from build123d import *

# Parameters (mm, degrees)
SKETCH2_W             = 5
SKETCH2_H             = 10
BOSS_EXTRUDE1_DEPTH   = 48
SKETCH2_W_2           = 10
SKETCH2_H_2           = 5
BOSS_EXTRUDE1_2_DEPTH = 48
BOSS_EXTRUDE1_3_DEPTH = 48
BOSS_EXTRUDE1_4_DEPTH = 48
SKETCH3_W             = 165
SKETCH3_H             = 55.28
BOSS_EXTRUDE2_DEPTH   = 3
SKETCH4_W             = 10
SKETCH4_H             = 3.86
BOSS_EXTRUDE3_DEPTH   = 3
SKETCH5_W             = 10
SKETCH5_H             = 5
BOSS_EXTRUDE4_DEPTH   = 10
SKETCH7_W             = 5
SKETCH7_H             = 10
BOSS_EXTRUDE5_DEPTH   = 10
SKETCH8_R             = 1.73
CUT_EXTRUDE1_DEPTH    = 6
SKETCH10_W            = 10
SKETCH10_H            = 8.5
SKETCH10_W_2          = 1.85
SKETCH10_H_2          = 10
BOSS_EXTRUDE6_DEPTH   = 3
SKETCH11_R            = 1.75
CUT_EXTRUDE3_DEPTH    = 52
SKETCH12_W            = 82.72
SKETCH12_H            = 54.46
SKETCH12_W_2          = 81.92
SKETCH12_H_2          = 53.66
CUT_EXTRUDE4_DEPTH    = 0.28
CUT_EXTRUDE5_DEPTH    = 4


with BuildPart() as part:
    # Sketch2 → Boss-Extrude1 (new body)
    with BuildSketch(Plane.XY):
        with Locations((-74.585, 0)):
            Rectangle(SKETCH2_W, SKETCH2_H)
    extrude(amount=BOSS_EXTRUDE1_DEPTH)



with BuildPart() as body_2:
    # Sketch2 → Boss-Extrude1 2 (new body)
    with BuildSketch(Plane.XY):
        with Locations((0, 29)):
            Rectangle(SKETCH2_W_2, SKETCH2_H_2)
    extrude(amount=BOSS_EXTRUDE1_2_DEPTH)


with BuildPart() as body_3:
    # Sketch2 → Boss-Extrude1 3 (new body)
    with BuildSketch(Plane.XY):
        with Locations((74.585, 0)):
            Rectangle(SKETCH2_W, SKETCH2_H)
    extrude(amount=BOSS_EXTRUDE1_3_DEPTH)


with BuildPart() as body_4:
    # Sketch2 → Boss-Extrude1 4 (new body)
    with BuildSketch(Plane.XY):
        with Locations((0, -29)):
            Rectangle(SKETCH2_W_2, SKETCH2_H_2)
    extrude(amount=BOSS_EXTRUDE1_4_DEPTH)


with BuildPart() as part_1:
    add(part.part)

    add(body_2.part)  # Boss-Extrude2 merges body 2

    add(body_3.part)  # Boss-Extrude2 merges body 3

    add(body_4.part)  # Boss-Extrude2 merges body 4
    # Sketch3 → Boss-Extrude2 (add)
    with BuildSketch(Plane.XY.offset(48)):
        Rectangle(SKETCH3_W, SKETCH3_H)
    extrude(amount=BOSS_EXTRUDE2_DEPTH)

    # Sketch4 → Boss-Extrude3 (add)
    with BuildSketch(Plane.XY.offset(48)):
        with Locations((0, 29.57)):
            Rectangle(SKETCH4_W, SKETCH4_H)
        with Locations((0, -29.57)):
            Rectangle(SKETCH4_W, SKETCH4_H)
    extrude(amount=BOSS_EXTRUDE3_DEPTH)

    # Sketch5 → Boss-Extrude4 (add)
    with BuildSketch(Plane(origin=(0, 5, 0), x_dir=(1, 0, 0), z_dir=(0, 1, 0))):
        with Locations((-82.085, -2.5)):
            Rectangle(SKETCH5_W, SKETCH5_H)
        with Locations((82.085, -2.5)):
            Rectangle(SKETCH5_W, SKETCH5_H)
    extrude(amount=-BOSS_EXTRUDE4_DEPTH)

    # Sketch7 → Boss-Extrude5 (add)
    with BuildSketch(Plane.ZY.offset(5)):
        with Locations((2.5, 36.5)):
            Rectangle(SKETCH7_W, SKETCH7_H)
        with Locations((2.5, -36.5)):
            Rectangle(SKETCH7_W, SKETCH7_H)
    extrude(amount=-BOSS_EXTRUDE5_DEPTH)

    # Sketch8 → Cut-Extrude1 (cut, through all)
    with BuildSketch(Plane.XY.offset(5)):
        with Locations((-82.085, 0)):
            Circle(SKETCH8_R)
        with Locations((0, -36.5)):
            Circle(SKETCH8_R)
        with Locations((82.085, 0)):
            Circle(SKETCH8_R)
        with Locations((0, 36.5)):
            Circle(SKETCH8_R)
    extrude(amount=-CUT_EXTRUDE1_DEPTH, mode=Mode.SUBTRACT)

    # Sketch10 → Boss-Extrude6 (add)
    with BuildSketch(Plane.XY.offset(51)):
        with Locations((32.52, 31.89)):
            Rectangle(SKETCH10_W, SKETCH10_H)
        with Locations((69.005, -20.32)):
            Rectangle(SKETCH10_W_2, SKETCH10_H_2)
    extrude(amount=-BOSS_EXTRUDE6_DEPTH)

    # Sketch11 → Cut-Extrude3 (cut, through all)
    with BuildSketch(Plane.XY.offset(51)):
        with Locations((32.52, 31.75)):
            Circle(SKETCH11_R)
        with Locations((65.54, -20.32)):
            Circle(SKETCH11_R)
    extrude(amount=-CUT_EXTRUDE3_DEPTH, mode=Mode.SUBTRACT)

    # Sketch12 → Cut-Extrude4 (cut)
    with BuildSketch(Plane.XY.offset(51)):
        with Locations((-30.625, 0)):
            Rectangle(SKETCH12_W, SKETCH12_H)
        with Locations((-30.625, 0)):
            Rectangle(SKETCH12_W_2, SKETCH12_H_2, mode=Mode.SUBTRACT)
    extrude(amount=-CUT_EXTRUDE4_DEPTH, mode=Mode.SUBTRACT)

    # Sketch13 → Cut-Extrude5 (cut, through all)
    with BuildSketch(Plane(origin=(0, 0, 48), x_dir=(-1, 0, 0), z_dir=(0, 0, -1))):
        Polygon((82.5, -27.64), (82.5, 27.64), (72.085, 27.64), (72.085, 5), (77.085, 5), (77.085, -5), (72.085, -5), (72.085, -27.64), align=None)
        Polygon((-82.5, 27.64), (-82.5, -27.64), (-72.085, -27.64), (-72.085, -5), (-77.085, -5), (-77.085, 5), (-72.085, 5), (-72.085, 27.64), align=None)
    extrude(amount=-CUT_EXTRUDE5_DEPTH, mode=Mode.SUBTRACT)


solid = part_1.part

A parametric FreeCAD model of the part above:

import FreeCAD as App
import Part
import Sketcher
Q = App.Units.Quantity


def add_polygon(sketch, points):
    """Adds a closed chain of lines whose ends are joined by coincident constraints."""
    first, n = sketch.GeometryCount, len(points)
    for a, b in zip(points, points[1:] + points[:1]):
        sketch.addGeometry(Part.LineSegment(App.Vector(*a, 0), App.Vector(*b, 0)), False)
    for i in range(n):
        sketch.addConstraint(Sketcher.Constraint("Coincident", first + i, 2, first + (i + 1) % n, 1))

doc = App.newDocument("Part")
body = doc.addObject("PartDesign::Body", "Body")

# Sketch on XY plane
sketch1 = body.newObject("Sketcher::SketchObject", "Sketch")
sketch1.AttachmentSupport = (doc.getObject("XY_Plane"), [""])
sketch1.MapMode = "FlatFace"
add_polygon(sketch1, [(-77, 5), (-77, -5), (-72, -5), (-72, 5)])  # lines 0-3
sketch1.addConstraint(Sketcher.Constraint("Vertical", 0))
sketch1.addConstraint(Sketcher.Constraint("Horizontal", 1))
sketch1.addConstraint(Sketcher.Constraint("Vertical", 2))
sketch1.addConstraint(Sketcher.Constraint("Horizontal", 3))
sketch1.addConstraint(Sketcher.Constraint("DistanceX", 1, 1, 1, 2, Q("5 mm")))
sketch1.addConstraint(Sketcher.Constraint("DistanceY", 0, 2, 0, 1, Q("10 mm")))
sketch1.addConstraint(Sketcher.Constraint("DistanceY", 0, 2, -1, 1, Q("5 mm")))
sketch1.addConstraint(Sketcher.Constraint("DistanceX", 0, 2, -1, 1, Q("77.085 mm")))
pad1 = body.newObject("PartDesign::Pad", "Pad")
pad1.Profile = sketch1
pad1.Length = 48
body2 = doc.addObject("PartDesign::Body", "Body001")

# Sketch on XY plane
sketch2 = body2.newObject("Sketcher::SketchObject", "Sketch001")
sketch2.AttachmentSupport = (doc.getObject("XY_Plane001"), [""])
sketch2.MapMode = "FlatFace"
add_polygon(sketch2, [(-5, 32), (-5, 26), (5, 26), (5, 32)])  # lines 0-3
sketch2.addConstraint(Sketcher.Constraint("Vertical", 0))
sketch2.addConstraint(Sketcher.Constraint("Horizontal", 1))
sketch2.addConstraint(Sketcher.Constraint("Vertical", 2))
sketch2.addConstraint(Sketcher.Constraint("Horizontal", 3))
sketch2.addConstraint(Sketcher.Constraint("DistanceX", 1, 1, 1, 2, Q("10 mm")))
sketch2.addConstraint(Sketcher.Constraint("DistanceY", 0, 2, 0, 1, Q("5 mm")))
sketch2.addConstraint(Sketcher.Constraint("DistanceX", 0, 2, -1, 1, Q("5 mm")))
sketch2.addConstraint(Sketcher.Constraint("DistanceY", -1, 1, 0, 2, Q("26.5 mm")))
pad2 = body2.newObject("PartDesign::Pad", "Pad001")
pad2.Profile = sketch2
pad2.Length = 48
body3 = doc.addObject("PartDesign::Body", "Body002")

# Sketch on XY plane
sketch3 = body3.newObject("Sketcher::SketchObject", "Sketch002")
sketch3.AttachmentSupport = (doc.getObject("XY_Plane002"), [""])
sketch3.MapMode = "FlatFace"
add_polygon(sketch3, [(72, 5), (72, -5), (77, -5), (77, 5)])  # lines 0-3
sketch3.addConstraint(Sketcher.Constraint("Vertical", 0))
sketch3.addConstraint(Sketcher.Constraint("Horizontal", 1))
sketch3.addConstraint(Sketcher.Constraint("Vertical", 2))
sketch3.addConstraint(Sketcher.Constraint("Horizontal", 3))
sketch3.addConstraint(Sketcher.Constraint("DistanceX", 1, 1, 1, 2, Q("5 mm")))
sketch3.addConstraint(Sketcher.Constraint("DistanceY", 0, 2, 0, 1, Q("10 mm")))
sketch3.addConstraint(Sketcher.Constraint("DistanceY", 0, 2, -1, 1, Q("5 mm")))
sketch3.addConstraint(Sketcher.Constraint("DistanceX", -1, 1, 0, 2, Q("72.085 mm")))
pad3 = body3.newObject("PartDesign::Pad", "Pad002")
pad3.Profile = sketch3
pad3.Length = 48
body4 = doc.addObject("PartDesign::Body", "Body003")

# Sketch on XY plane
sketch4 = body4.newObject("Sketcher::SketchObject", "Sketch003")
sketch4.AttachmentSupport = (doc.getObject("XY_Plane003"), [""])
sketch4.MapMode = "FlatFace"
add_polygon(sketch4, [(-5, -26), (-5, -32), (5, -32), (5, -26)])  # lines 0-3
sketch4.addConstraint(Sketcher.Constraint("Vertical", 0))
sketch4.addConstraint(Sketcher.Constraint("Horizontal", 1))
sketch4.addConstraint(Sketcher.Constraint("Vertical", 2))
sketch4.addConstraint(Sketcher.Constraint("Horizontal", 3))
sketch4.addConstraint(Sketcher.Constraint("DistanceX", 1, 1, 1, 2, Q("10 mm")))
sketch4.addConstraint(Sketcher.Constraint("DistanceY", 0, 2, 0, 1, Q("5 mm")))
sketch4.addConstraint(Sketcher.Constraint("DistanceX", 0, 2, -1, 1, Q("5 mm")))
sketch4.addConstraint(Sketcher.Constraint("DistanceY", 0, 2, -1, 1, Q("31.5 mm")))
pad4 = body4.newObject("PartDesign::Pad", "Pad003")
pad4.Profile = sketch4
pad4.Length = 48
body.AllowCompound = True
doc.recompute()

boolean = body.newObject("PartDesign::Boolean", "Boolean")
boolean.Type = "Fuse"
boolean.addObjects([body2])
doc.recompute()

boolean2 = body.newObject("PartDesign::Boolean", "Boolean001")
boolean2.Type = "Fuse"
boolean2.addObjects([body3])
doc.recompute()

boolean3 = body.newObject("PartDesign::Boolean", "Boolean002")
boolean3.Type = "Fuse"
boolean3.addObjects([body4])

# Sketch on XY plane
sketch5 = body.newObject("Sketcher::SketchObject", "Sketch004")
sketch5.AttachmentSupport = (doc.getObject("XY_Plane"), [""])
sketch5.MapMode = "FlatFace"
sketch5.AttachmentOffset = App.Placement(App.Vector(0, 0, 48), App.Rotation())
add_polygon(sketch5, [(-82, 28), (-82, -28), (82, -28), (82, 28)])  # lines 0-3
sketch5.addConstraint(Sketcher.Constraint("Vertical", 0))
sketch5.addConstraint(Sketcher.Constraint("Horizontal", 1))
sketch5.addConstraint(Sketcher.Constraint("Vertical", 2))
sketch5.addConstraint(Sketcher.Constraint("Horizontal", 3))
sketch5.addConstraint(Sketcher.Constraint("Symmetric", 0, 2, 2, 2, -1, 1))
sketch5.addConstraint(Sketcher.Constraint("DistanceX", 1, 1, 1, 2, Q("165 mm")))
sketch5.addConstraint(Sketcher.Constraint("DistanceY", 0, 2, 0, 1, Q("55.28 mm")))
pad5 = body.newObject("PartDesign::Pad", "Pad004")
pad5.Profile = sketch5
pad5.Length = 3

# Sketch on XY plane
sketch6 = body.newObject("Sketcher::SketchObject", "Sketch005")
sketch6.AttachmentSupport = (doc.getObject("XY_Plane"), [""])
sketch6.MapMode = "FlatFace"
sketch6.AttachmentOffset = App.Placement(App.Vector(0, 0, 48), App.Rotation())
add_polygon(sketch6, [(-5, 31.5), (-5, 27.6), (5, 27.6), (5, 31.5)])  # lines 0-3
add_polygon(sketch6, [(-5, -27.6), (-5, -31.5), (5, -31.5), (5, -27.6)])  # lines 4-7
sketch6.addConstraint(Sketcher.Constraint("Vertical", 0))
sketch6.addConstraint(Sketcher.Constraint("Horizontal", 1))
sketch6.addConstraint(Sketcher.Constraint("Vertical", 2))
sketch6.addConstraint(Sketcher.Constraint("Horizontal", 3))
sketch6.addConstraint(Sketcher.Constraint("Vertical", 4))
sketch6.addConstraint(Sketcher.Constraint("Horizontal", 5))
sketch6.addConstraint(Sketcher.Constraint("Vertical", 6))
sketch6.addConstraint(Sketcher.Constraint("Horizontal", 7))
sketch6.addConstraint(Sketcher.Constraint("Symmetric", 2, 2, 4, 2, -1, 1))
sketch6.addConstraint(Sketcher.Constraint("Symmetric", 0, 2, 6, 2, -1, 1))
sketch6.addConstraint(Sketcher.Constraint("Vertical", 3, 2, 4, 2))
sketch6.addConstraint(Sketcher.Constraint("DistanceX", 1, 1, 1, 2, Q("10 mm")))
sketch6.addConstraint(Sketcher.Constraint("DistanceY", 4, 2, 3, 2, Q("63 mm")))
sketch6.addConstraint(Sketcher.Constraint("DistanceY", 0, 2, 0, 1, Q("3.86 mm")))
pad6 = body.newObject("PartDesign::Pad", "Pad005")
pad6.Profile = sketch6
pad6.Length = 3

# Sketch on XZ plane
sketch7 = body.newObject("Sketcher::SketchObject", "Sketch006")
sketch7.AttachmentSupport = (doc.getObject("XZ_Plane"), [""])
sketch7.MapMode = "FlatFace"
sketch7.AttachmentOffset = App.Placement(App.Vector(0, 0, -5), App.Rotation())
add_polygon(sketch7, [(-87, 0), (-87, 5), (-77, 5), (-77, 0)])  # lines 0-3
add_polygon(sketch7, [(77, 0), (77, 5), (87, 5), (87, 0)])  # lines 4-7
sketch7.addConstraint(Sketcher.Constraint("Vertical", 0))
sketch7.addConstraint(Sketcher.Constraint("Horizontal", 1))
sketch7.addConstraint(Sketcher.Constraint("Vertical", 2))
sketch7.addConstraint(Sketcher.Constraint("Horizontal", 3))
sketch7.addConstraint(Sketcher.Constraint("Vertical", 4))
sketch7.addConstraint(Sketcher.Constraint("Horizontal", 5))
sketch7.addConstraint(Sketcher.Constraint("Vertical", 6))
sketch7.addConstraint(Sketcher.Constraint("Horizontal", 7))
sketch7.addConstraint(Sketcher.Constraint("Symmetric", 3, 2, 6, 2, -1, 1))
sketch7.addConstraint(Sketcher.Constraint("Symmetric", 1, 2, 4, 2, -2))
sketch7.addConstraint(Sketcher.Constraint("PointOnObject", 2, 2, -1))
sketch7.addConstraint(Sketcher.Constraint("DistanceX", 1, 1, 1, 2, Q("10 mm")))
sketch7.addConstraint(Sketcher.Constraint("DistanceY", 0, 1, 0, 2, Q("5 mm")))
sketch7.addConstraint(Sketcher.Constraint("DistanceX", 1, 2, 4, 2, Q("154.17 mm")))
pad7 = body.newObject("PartDesign::Pad", "Pad006")
pad7.Profile = sketch7
pad7.Length = 10

# Sketch on YZ plane
sketch8 = body.newObject("Sketcher::SketchObject", "Sketch007")
sketch8.AttachmentSupport = (doc.getObject("YZ_Plane"), [""])
sketch8.MapMode = "FlatFace"
sketch8.AttachmentOffset = App.Placement(App.Vector(0, 0, -5), App.Rotation())
add_polygon(sketch8, [(42, 0), (32, 0), (32, 5), (42, 5)])  # lines 0-3
add_polygon(sketch8, [(-32, 0), (-42, 0), (-42, 5), (-32, 5)])  # lines 4-7
sketch8.addConstraint(Sketcher.Constraint("Horizontal", 0))
sketch8.addConstraint(Sketcher.Constraint("Vertical", 1))
sketch8.addConstraint(Sketcher.Constraint("Horizontal", 2))
sketch8.addConstraint(Sketcher.Constraint("Vertical", 3))
sketch8.addConstraint(Sketcher.Constraint("Horizontal", 4))
sketch8.addConstraint(Sketcher.Constraint("Vertical", 5))
sketch8.addConstraint(Sketcher.Constraint("Horizontal", 6))
sketch8.addConstraint(Sketcher.Constraint("Vertical", 7))
sketch8.addConstraint(Sketcher.Constraint("Symmetric", 3, 2, 4, 2, -1, 1))
sketch8.addConstraint(Sketcher.Constraint("Symmetric", 1, 2, 6, 2, -2))
sketch8.addConstraint(Sketcher.Constraint("PointOnObject", 0, 2, -1))
sketch8.addConstraint(Sketcher.Constraint("DistanceX", 0, 2, 0, 1, Q("10 mm")))
sketch8.addConstraint(Sketcher.Constraint("DistanceY", 1, 1, 1, 2, Q("5 mm")))
sketch8.addConstraint(Sketcher.Constraint("DistanceX", 4, 2, 0, 2, Q("73 mm")))
pad8 = body.newObject("PartDesign::Pad", "Pad007")
pad8.Profile = sketch8
pad8.Length = 10

# Sketch on XY plane
sketch9 = body.newObject("Sketcher::SketchObject", "Sketch008")
sketch9.AttachmentSupport = (doc.getObject("XY_Plane"), [""])
sketch9.MapMode = "FlatFace"
sketch9.AttachmentOffset = App.Placement(App.Vector(0, 0, 5), App.Rotation())
sketch9.addGeometry(Part.Circle(App.Vector(-82.1, 0, 0), App.Vector(0, 0, 1), 1.7), False)
sketch9.addGeometry(Part.Circle(App.Vector(0, -36.5, 0), App.Vector(0, 0, 1), 1.7), False)
sketch9.addGeometry(Part.Circle(App.Vector(82.1, 0, 0), App.Vector(0, 0, 1), 1.7), False)
sketch9.addGeometry(Part.Circle(App.Vector(0, 36.5, 0), App.Vector(0, 0, 1), 1.7), False)
sketch9.addConstraint(Sketcher.Constraint("Equal", 0, 1))
sketch9.addConstraint(Sketcher.Constraint("Equal", 1, 2))
sketch9.addConstraint(Sketcher.Constraint("Equal", 2, 3))
sketch9.addConstraint(Sketcher.Constraint("Symmetric", 0, 3, 2, 3, -1, 1))
sketch9.addConstraint(Sketcher.Constraint("Symmetric", 1, 3, 3, 3, -1, 1))
sketch9.addConstraint(Sketcher.Constraint("PointOnObject", 0, 3, -1))
sketch9.addConstraint(Sketcher.Constraint("PointOnObject", 1, 3, -2))
sketch9.addConstraint(Sketcher.Constraint("Diameter", 0, Q("3.46 mm")))
sketch9.addConstraint(Sketcher.Constraint("DistanceY", 1, 3, 3, 3, Q("73 mm")))
sketch9.addConstraint(Sketcher.Constraint("DistanceX", 0, 3, 2, 3, Q("164.17 mm")))
pocket1 = body.newObject("PartDesign::Pocket", "Pocket")
pocket1.Profile = sketch9
pocket1.Type = "ThroughAll"

# Sketch on XY plane
sketch10 = body.newObject("Sketcher::SketchObject", "Sketch009")
sketch10.AttachmentSupport = (doc.getObject("XY_Plane"), [""])
sketch10.MapMode = "FlatFace"
sketch10.AttachmentOffset = App.Placement(App.Vector(0, 0, 51), App.Rotation())
add_polygon(sketch10, [(27.5, 36.1), (27.5, 27.6), (37.5, 27.6), (37.5, 36.1)])  # lines 0-3
add_polygon(sketch10, [(68.1, -15.3), (68.1, -25.3), (69.9, -25.3), (69.9, -15.3)])  # lines 4-7
sketch10.addConstraint(Sketcher.Constraint("Vertical", 0))
sketch10.addConstraint(Sketcher.Constraint("Horizontal", 1))
sketch10.addConstraint(Sketcher.Constraint("Vertical", 2))
sketch10.addConstraint(Sketcher.Constraint("Horizontal", 3))
sketch10.addConstraint(Sketcher.Constraint("Vertical", 4))
sketch10.addConstraint(Sketcher.Constraint("Horizontal", 5))
sketch10.addConstraint(Sketcher.Constraint("Vertical", 6))
sketch10.addConstraint(Sketcher.Constraint("Horizontal", 7))
sketch10.addConstraint(Sketcher.Constraint("Equal", 3, 4))
sketch10.addConstraint(Sketcher.Constraint("DistanceX", 1, 1, 1, 2, Q("10 mm")))
sketch10.addConstraint(Sketcher.Constraint("DistanceY", 0, 2, 0, 1, Q("8.5 mm")))
sketch10.addConstraint(Sketcher.Constraint("DistanceX", 5, 1, 5, 2, Q("1.85 mm")))
sketch10.addConstraint(Sketcher.Constraint("DistanceX", -1, 1, 0, 2, Q("27.52 mm")))
sketch10.addConstraint(Sketcher.Constraint("DistanceY", -1, 1, 0, 2, Q("27.64 mm")))
sketch10.addConstraint(Sketcher.Constraint("DistanceX", -1, 1, 4, 2, Q("68.08 mm")))
sketch10.addConstraint(Sketcher.Constraint("DistanceY", 4, 2, -1, 1, Q("25.32 mm")))
pad9 = body.newObject("PartDesign::Pad", "Pad008")
pad9.Profile = sketch10
pad9.Length = 3
pad9.Reversed = True

# Sketch on XY plane
sketch11 = body.newObject("Sketcher::SketchObject", "Sketch010")
sketch11.AttachmentSupport = (doc.getObject("XY_Plane"), [""])
sketch11.MapMode = "FlatFace"
sketch11.AttachmentOffset = App.Placement(App.Vector(0, 0, 51), App.Rotation())
sketch11.addGeometry(Part.Circle(App.Vector(32.5, 31.8, 0), App.Vector(0, 0, 1), 1.8), False)
sketch11.addGeometry(Part.Circle(App.Vector(65.5, -20.3, 0), App.Vector(0, 0, 1), 1.8), False)
sketch11.addConstraint(Sketcher.Constraint("Equal", 0, 1))
sketch11.addConstraint(Sketcher.Constraint("Diameter", 0, Q("3.5 mm")))
sketch11.addConstraint(Sketcher.Constraint("DistanceX", -1, 1, 0, 3, Q("32.52 mm")))
sketch11.addConstraint(Sketcher.Constraint("DistanceY", -1, 1, 0, 3, Q("31.75 mm")))
sketch11.addConstraint(Sketcher.Constraint("DistanceX", -1, 1, 1, 3, Q("65.54 mm")))
sketch11.addConstraint(Sketcher.Constraint("DistanceY", 1, 3, -1, 1, Q("20.32 mm")))
pocket2 = body.newObject("PartDesign::Pocket", "Pocket001")
pocket2.Profile = sketch11
pocket2.Type = "ThroughAll"

# Sketch on XY plane
sketch12 = body.newObject("Sketcher::SketchObject", "Sketch011")
sketch12.AttachmentSupport = (doc.getObject("XY_Plane"), [""])
sketch12.MapMode = "FlatFace"
sketch12.AttachmentOffset = App.Placement(App.Vector(0, 0, 51), App.Rotation())
add_polygon(sketch12, [(-72, 27), (-72, -27), (11, -27), (11, 27)])  # lines 0-3
add_polygon(sketch12, [(10, -27), (-72, -27), (-72, 27), (10, 27)])  # lines 4-7
sketch12.addConstraint(Sketcher.Constraint("Vertical", 0))
sketch12.addConstraint(Sketcher.Constraint("Horizontal", 1))
sketch12.addConstraint(Sketcher.Constraint("Vertical", 2))
sketch12.addConstraint(Sketcher.Constraint("Horizontal", 3))
sketch12.addConstraint(Sketcher.Constraint("Horizontal", 4))
sketch12.addConstraint(Sketcher.Constraint("Vertical", 5))
sketch12.addConstraint(Sketcher.Constraint("Horizontal", 6))
sketch12.addConstraint(Sketcher.Constraint("Vertical", 7))
sketch12.addConstraint(Sketcher.Constraint("DistanceX", 1, 1, 1, 2, Q("82.72 mm")))
sketch12.addConstraint(Sketcher.Constraint("DistanceX", 4, 2, 4, 1, Q("81.92 mm")))
sketch12.addConstraint(Sketcher.Constraint("DistanceY", 0, 2, 0, 1, Q("54.46 mm")))
sketch12.addConstraint(Sketcher.Constraint("DistanceY", 5, 1, 5, 2, Q("53.66 mm")))
sketch12.addConstraint(Sketcher.Constraint("DistanceX", 0, 2, 4, 2, Q("0.4 mm")))
sketch12.addConstraint(Sketcher.Constraint("DistanceY", 0, 2, 4, 2, Q("0.4 mm")))
sketch12.addConstraint(Sketcher.Constraint("DistanceY", 0, 2, -1, 1, Q("27.23 mm")))
sketch12.addConstraint(Sketcher.Constraint("DistanceX", 0, 2, -1, 1, Q("71.985 mm")))
pocket3 = body.newObject("PartDesign::Pocket", "Pocket002")
pocket3.Profile = sketch12
pocket3.Length = 0.28

# Sketch on XY plane
sketch13 = body.newObject("Sketcher::SketchObject", "Sketch012")
sketch13.AttachmentSupport = (doc.getObject("XY_Plane"), [""])
sketch13.MapMode = "FlatFace"
sketch13.AttachmentOffset = App.Placement(App.Vector(0, 0, 48), App.Rotation())
add_polygon(sketch13, [(-82, -28), (-82, 28), (-72, 28), (-72, 5), (-77, 5), (-77, -5), (-72, -5), (-72, -28)])  # lines 0-7
add_polygon(sketch13, [(82, 28), (82, -28), (72, -28), (72, -5), (77, -5), (77, 5), (72, 5), (72, 28)])  # lines 8-15
sketch13.addConstraint(Sketcher.Constraint("Vertical", 0))
sketch13.addConstraint(Sketcher.Constraint("Horizontal", 1))
sketch13.addConstraint(Sketcher.Constraint("Vertical", 2))
sketch13.addConstraint(Sketcher.Constraint("Horizontal", 3))
sketch13.addConstraint(Sketcher.Constraint("Vertical", 4))
sketch13.addConstraint(Sketcher.Constraint("Horizontal", 5))
sketch13.addConstraint(Sketcher.Constraint("Vertical", 6))
sketch13.addConstraint(Sketcher.Constraint("Horizontal", 7))
sketch13.addConstraint(Sketcher.Constraint("Vertical", 8))
sketch13.addConstraint(Sketcher.Constraint("Horizontal", 9))
sketch13.addConstraint(Sketcher.Constraint("Vertical", 10))
sketch13.addConstraint(Sketcher.Constraint("Horizontal", 11))
sketch13.addConstraint(Sketcher.Constraint("Vertical", 12))
sketch13.addConstraint(Sketcher.Constraint("Horizontal", 13))
sketch13.addConstraint(Sketcher.Constraint("Vertical", 14))
sketch13.addConstraint(Sketcher.Constraint("Horizontal", 15))
sketch13.addConstraint(Sketcher.Constraint("Symmetric", 0, 2, 8, 2, -1, 1))
sketch13.addConstraint(Sketcher.Constraint("Symmetric", 2, 2, 10, 2, -1, 1))
sketch13.addConstraint(Sketcher.Constraint("Symmetric", 4, 2, 12, 2, -1, 1))
sketch13.addConstraint(Sketcher.Constraint("Symmetric", 6, 2, 14, 2, -1, 1))
sketch13.addConstraint(Sketcher.Constraint("Symmetric", 6, 2, 9, 2, -2))
sketch13.addConstraint(Sketcher.Constraint("Horizontal", 5, 2, 10, 2))
sketch13.addConstraint(Sketcher.Constraint("DistanceX", 3, 2, 3, 1, Q("5 mm")))
sketch13.addConstraint(Sketcher.Constraint("DistanceY", 4, 2, 4, 1, Q("10 mm")))
sketch13.addConstraint(Sketcher.Constraint("DistanceY", 0, 1, 0, 2, Q("55.28 mm")))
sketch13.addConstraint(Sketcher.Constraint("DistanceX", 0, 2, -1, 1, Q("82.5 mm")))
sketch13.addConstraint(Sketcher.Constraint("DistanceX", 1, 1, 1, 2, Q("10.415 mm")))
pocket4 = body.newObject("PartDesign::Pocket", "Pocket003")
pocket4.Profile = sketch13
pocket4.Type = "ThroughAll"
pocket4.Reversed = True

doc.recompute()
